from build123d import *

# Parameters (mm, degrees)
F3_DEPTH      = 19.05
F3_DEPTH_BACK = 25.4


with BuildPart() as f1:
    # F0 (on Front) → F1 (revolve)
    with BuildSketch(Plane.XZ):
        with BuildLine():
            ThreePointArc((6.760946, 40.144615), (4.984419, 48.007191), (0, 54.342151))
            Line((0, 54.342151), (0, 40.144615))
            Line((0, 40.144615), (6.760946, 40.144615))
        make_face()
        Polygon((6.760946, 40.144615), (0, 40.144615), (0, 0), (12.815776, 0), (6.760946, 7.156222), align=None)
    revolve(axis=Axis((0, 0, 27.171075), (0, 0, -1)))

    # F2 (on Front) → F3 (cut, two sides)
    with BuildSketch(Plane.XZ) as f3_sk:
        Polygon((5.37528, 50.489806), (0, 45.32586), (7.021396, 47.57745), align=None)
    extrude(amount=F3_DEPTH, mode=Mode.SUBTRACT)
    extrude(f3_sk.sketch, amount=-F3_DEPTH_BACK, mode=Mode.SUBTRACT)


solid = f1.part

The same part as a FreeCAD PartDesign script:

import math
import FreeCAD as App
import Part
import Sketcher


def add_polygon(sketch, points):
    """Adds a closed chain of lines whose ends are joined by coincident constraints."""
    first, n = sketch.GeometryCount, len(points)
    for a, b in zip(points, points[1:] + points[:1]):
        sketch.addGeometry(Part.LineSegment(App.Vector(*a, 0), App.Vector(*b, 0)), False)
    for i in range(n):
        sketch.addConstraint(Sketcher.Constraint("Coincident", first + i, 2, first + (i + 1) % n, 1))

doc = App.newDocument("Part")
body = doc.addObject("PartDesign::Body", "Body")

sketch1 = body.newObject("Sketcher::SketchObject", "Sketch")
sketch1.AttachmentSupport = (doc.getObject("XZ_Plane"), [""])
sketch1.MapMode = "FlatFace"
sketch1.addGeometry([
    Part.ArcOfCircle(Part.Circle(App.Vector(-12, 40, 0), App.Vector(0, 0, 1), 18), math.radians(0), math.radians(51)),
    Part.LineSegment(App.Vector(0, 54, 0), App.Vector(0, 0, 0)),
    Part.LineSegment(App.Vector(0, 0, 0), App.Vector(13, 0, 0)),
    Part.LineSegment(App.Vector(13, 0, 0), App.Vector(7, 7, 0)),
    Part.LineSegment(App.Vector(7, 7, 0), App.Vector(7, 40, 0)),
], False)
sketch1.addConstraint([
    Sketcher.Constraint("Coincident", 0, 2, 1, 1),
    Sketcher.Constraint("Coincident", 1, 2, 2, 1),
    Sketcher.Constraint("Coincident", 2, 2, 3, 1),
    Sketcher.Constraint("Coincident", 3, 2, 4, 1),
    Sketcher.Constraint("Tangent", 4, 2, 0, 1),
    Sketcher.Constraint("Vertical", 1),
    Sketcher.Constraint("Horizontal", 2),
    Sketcher.Constraint("Vertical", 4),
    Sketcher.Constraint("Coincident", 1, 2, -1, 1),
    Sketcher.Constraint("Radius", 0, 18.287417),
    Sketcher.Constraint("DistanceY", 1, 2, 1, 1, 54.342151),
    Sketcher.Constraint("DistanceX", 2, 1, 2, 2, 12.815776),
    Sketcher.Constraint("DistanceY", 4, 1, 4, 2, 32.988393),
    Sketcher.Constraint("DistanceX", 0, 3, -1, 1, 11.526471),
])
revolution = body.newObject("PartDesign::Revolution", "Revolution")
revolution.Profile = sketch1
revolution.ReferenceAxis = (sketch1, ["V_Axis"])
revolution.Angle = 360

sketch2 = body.newObject("Sketcher::SketchObject", "Sketch001")
sketch2.AttachmentSupport = (doc.getObject("XZ_Plane"), [""])
sketch2.MapMode = "FlatFace"
add_polygon(sketch2, [(5.4, 50.5), (0, 45.3), (7, 47.6)])
sketch2.addConstraint([
    Sketcher.Constraint("PointOnObject", 0, 2, -2),
    Sketcher.Constraint("Distance", 1, 7.373578),
    Sketcher.Constraint("DistanceY", -1, 1, 0, 2, 45.32586),
    Sketcher.Constraint("DistanceY", -1, 1, 1, 2, 47.57745),
    Sketcher.Constraint("DistanceX", -1, 1, 2, 2, 5.37528),
    Sketcher.Constraint("Distance", 0, 7.453856),
])
pocket1 = body.newObject("PartDesign::Pocket", "Pocket")
pocket1.Profile = sketch2
pocket1.Type = "ThroughAll"
pocket1.Midplane = True

doc.recompute()
